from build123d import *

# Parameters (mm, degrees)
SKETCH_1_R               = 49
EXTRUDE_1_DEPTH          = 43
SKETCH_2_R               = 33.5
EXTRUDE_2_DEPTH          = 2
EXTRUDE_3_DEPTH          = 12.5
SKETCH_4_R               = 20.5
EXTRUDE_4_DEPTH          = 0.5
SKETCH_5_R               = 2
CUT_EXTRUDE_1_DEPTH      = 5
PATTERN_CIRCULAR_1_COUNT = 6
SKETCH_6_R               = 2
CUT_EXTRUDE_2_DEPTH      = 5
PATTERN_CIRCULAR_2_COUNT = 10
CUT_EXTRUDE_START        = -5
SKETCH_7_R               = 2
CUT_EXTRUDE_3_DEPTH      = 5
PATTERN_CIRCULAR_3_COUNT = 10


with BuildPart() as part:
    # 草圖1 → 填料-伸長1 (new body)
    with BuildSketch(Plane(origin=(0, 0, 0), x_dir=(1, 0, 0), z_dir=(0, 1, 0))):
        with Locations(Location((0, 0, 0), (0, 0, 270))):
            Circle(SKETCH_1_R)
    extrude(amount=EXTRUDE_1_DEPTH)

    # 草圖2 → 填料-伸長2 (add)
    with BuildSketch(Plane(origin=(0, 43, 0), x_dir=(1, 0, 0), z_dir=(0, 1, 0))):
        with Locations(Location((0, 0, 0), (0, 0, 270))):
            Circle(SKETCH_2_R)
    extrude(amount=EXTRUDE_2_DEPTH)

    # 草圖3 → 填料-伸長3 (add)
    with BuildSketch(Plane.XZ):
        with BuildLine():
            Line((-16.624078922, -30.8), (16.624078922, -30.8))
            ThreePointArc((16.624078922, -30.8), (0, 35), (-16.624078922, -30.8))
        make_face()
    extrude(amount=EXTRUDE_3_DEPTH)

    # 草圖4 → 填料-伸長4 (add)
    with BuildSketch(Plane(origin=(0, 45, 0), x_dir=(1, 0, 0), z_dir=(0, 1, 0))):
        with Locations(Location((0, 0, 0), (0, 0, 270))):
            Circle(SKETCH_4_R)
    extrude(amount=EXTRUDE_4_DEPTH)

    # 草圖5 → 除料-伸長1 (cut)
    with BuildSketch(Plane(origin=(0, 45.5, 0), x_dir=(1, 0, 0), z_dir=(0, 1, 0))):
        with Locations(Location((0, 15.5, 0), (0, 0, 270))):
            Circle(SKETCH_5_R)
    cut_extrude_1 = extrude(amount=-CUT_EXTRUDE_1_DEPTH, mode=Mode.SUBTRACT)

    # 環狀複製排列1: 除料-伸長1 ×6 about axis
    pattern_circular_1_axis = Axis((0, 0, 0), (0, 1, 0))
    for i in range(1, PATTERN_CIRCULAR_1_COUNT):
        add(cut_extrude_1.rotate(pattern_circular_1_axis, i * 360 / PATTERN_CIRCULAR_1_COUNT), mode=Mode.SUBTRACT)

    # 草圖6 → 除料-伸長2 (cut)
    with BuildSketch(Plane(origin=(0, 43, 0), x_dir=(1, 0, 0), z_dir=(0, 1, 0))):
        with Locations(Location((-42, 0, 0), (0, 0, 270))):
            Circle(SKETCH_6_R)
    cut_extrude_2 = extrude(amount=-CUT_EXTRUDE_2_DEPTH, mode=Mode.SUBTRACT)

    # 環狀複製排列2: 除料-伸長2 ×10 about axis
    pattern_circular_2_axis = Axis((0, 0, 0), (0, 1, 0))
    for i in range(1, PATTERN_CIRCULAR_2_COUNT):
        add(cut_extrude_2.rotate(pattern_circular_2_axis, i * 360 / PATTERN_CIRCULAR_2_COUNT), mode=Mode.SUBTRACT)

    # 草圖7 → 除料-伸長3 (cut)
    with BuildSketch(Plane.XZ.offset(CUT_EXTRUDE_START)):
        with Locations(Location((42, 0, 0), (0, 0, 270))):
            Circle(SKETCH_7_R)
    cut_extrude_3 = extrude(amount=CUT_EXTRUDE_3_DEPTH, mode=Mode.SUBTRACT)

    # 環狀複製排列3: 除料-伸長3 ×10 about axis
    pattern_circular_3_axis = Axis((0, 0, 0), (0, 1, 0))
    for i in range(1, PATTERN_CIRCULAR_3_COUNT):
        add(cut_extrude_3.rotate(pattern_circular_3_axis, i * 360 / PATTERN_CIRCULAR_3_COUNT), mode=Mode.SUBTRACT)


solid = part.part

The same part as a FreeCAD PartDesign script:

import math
import FreeCAD as App
import Part
import Sketcher
from FreeCAD import Vector

doc = App.newDocument("Part")
body = doc.addObject("PartDesign::Body", "Body")

# Sketch on XZ plane
sketch1 = doc.addObject("Sketcher::SketchObject", "Sketch")
body.addObject(sketch1)
sketch1.AttachmentSupport = (doc.XZ_Plane, [""])
sketch1.MapMode = "FlatFace"
sketch1.addGeometry(Part.Circle(Vector(0, 0, 0), Vector(0, 0, 1), 49), False)
sketch1.addConstraint(Sketcher.Constraint("Coincident", 0, 3, -1, 1))
sketch1.addConstraint(Sketcher.Constraint("Diameter", 0, 98.0))
pad1 = doc.addObject("PartDesign::Pad", "Pad")
body.addObject(pad1)
pad1.Profile = sketch1
pad1.Length = 43
pad1.Reversed = True

# Sketch on XZ plane
sketch2 = doc.addObject("Sketcher::SketchObject", "Sketch001")
body.addObject(sketch2)
sketch2.AttachmentSupport = (doc.XZ_Plane, [""])
sketch2.MapMode = "FlatFace"
sketch2.AttachmentOffset = App.Placement(Vector(0, 0, -43), App.Rotation())
sketch2.addGeometry(Part.Circle(Vector(0, 0, 0), Vector(0, 0, 1), 33.5), False)
sketch2.addConstraint(Sketcher.Constraint("Coincident", 0, 3, -1, 1))
sketch2.addConstraint(Sketcher.Constraint("Diameter", 0, 67.0))
pad2 = doc.addObject("PartDesign::Pad", "Pad001")
body.addObject(pad2)
pad2.Profile = sketch2
pad2.Length = 2
pad2.Reversed = True

# Sketch on XZ plane
sketch3 = doc.addObject("Sketcher::SketchObject", "Sketch002")
body.addObject(sketch3)
sketch3.AttachmentSupport = (doc.XZ_Plane, [""])
sketch3.MapMode = "FlatFace"
sketch3.addGeometry(Part.LineSegment(Vector(-16.624079, -30.8, 0), Vector(16.624079, -30.8, 0)), False)
sketch3.addGeometry(Part.ArcOfCircle(Part.Circle(Vector(0, 0, 0), Vector(0, 0, 1), 35), math.radians(-61.642363), math.radians(241.642363)), False)
sketch3.addConstraint(Sketcher.Constraint("Coincident", 0, 1, 1, 2))
sketch3.addConstraint(Sketcher.Constraint("Coincident", 1, 1, 0, 2))
sketch3.addConstraint(Sketcher.Constraint("Horizontal", 0))
sketch3.addConstraint(Sketcher.Constraint("Coincident", 1, 3, -1, 1))
sketch3.addConstraint(Sketcher.Constraint("Radius", 1, 35.0))
sketch3.addConstraint(Sketcher.Constraint("DistanceY", 0, 1, -1, 1, 30.8))
pad3 = doc.addObject("PartDesign::Pad", "Pad002")
body.addObject(pad3)
pad3.Profile = sketch3
pad3.Length = 12.5

# Sketch on XZ plane
sketch4 = doc.addObject("Sketcher::SketchObject", "Sketch003")
body.addObject(sketch4)
sketch4.AttachmentSupport = (doc.XZ_Plane, [""])
sketch4.MapMode = "FlatFace"
sketch4.AttachmentOffset = App.Placement(Vector(0, 0, -45), App.Rotation())
sketch4.addGeometry(Part.Circle(Vector(0, 0, 0), Vector(0, 0, 1), 20.5), False)
sketch4.addConstraint(Sketcher.Constraint("Coincident", 0, 3, -1, 1))
sketch4.addConstraint(Sketcher.Constraint("Diameter", 0, 41.0))
pad4 = doc.addObject("PartDesign::Pad", "Pad003")
body.addObject(pad4)
pad4.Profile = sketch4
pad4.Length = 0.5
pad4.Reversed = True

# Sketch on XZ plane
sketch5 = doc.addObject("Sketcher::SketchObject", "Sketch004")
body.addObject(sketch5)
sketch5.AttachmentSupport = (doc.XZ_Plane, [""])
sketch5.MapMode = "FlatFace"
sketch5.AttachmentOffset = App.Placement(Vector(0, 0, -45.5), App.Rotation())
sketch5.addGeometry(Part.Circle(Vector(0, -15.5, 0), Vector(0, 0, 1), 2), False)
sketch5.addConstraint(Sketcher.Constraint("PointOnObject", 0, 3, -2))
sketch5.addConstraint(Sketcher.Constraint("Diameter", 0, 4.0))
sketch5.addConstraint(Sketcher.Constraint("DistanceY", 0, 3, -1, 1, 15.5))
pocket1 = doc.addObject("PartDesign::Pocket", "Pocket")
body.addObject(pocket1)
pocket1.Profile = sketch5
pocket1.Length = 5
pocket1.Reversed = True
doc.recompute()

polarpattern = doc.addObject("PartDesign::PolarPattern", "PolarPattern")
body.addObject(polarpattern)
polarpattern.Originals = [pocket1]
polarpattern.Axis = (doc.Y_Axis, [""])
polarpattern.Angle = 360
polarpattern.Occurrences = 6
body.Tip = polarpattern

# Sketch on XZ plane
sketch6 = doc.addObject("Sketcher::SketchObject", "Sketch005")
body.addObject(sketch6)
sketch6.AttachmentSupport = (doc.XZ_Plane, [""])
sketch6.MapMode = "FlatFace"
sketch6.AttachmentOffset = App.Placement(Vector(0, 0, -43), App.Rotation())
sketch6.addGeometry(Part.Circle(Vector(-42, 0, 0), Vector(0, 0, 1), 2), False)
sketch6.addConstraint(Sketcher.Constraint("PointOnObject", 0, 3, -1))
sketch6.addConstraint(Sketcher.Constraint("Diameter", 0, 4.0))
sketch6.addConstraint(Sketcher.Constraint("DistanceX", 0, 3, -1, 1, 42.0))
pocket2 = doc.addObject("PartDesign::Pocket", "Pocket001")
body.addObject(pocket2)
pocket2.Profile = sketch6
pocket2.Length = 5
pocket2.Reversed = True
doc.recompute()

polarpattern2 = doc.addObject("PartDesign::PolarPattern", "PolarPattern001")
body.addObject(polarpattern2)
polarpattern2.Originals = [pocket2]
polarpattern2.Axis = (doc.Y_Axis, [""])
polarpattern2.Angle = 360
polarpattern2.Occurrences = 10
body.Tip = polarpattern2

# Sketch on XZ plane
sketch7 = doc.addObject("Sketcher::SketchObject", "Sketch006")
body.addObject(sketch7)
sketch7.AttachmentSupport = (doc.XZ_Plane, [""])
sketch7.MapMode = "FlatFace"
sketch7.AttachmentOffset = App.Placement(Vector(0, 0, -5), App.Rotation())
sketch7.addGeometry(Part.Circle(Vector(42, 0, 0), Vector(0, 0, 1), 2), False)
sketch7.addConstraint(Sketcher.Constraint("PointOnObject", 0, 3, -1))
sketch7.addConstraint(Sketcher.Constraint("Diameter", 0, 4.0))
sketch7.addConstraint(Sketcher.Constraint("DistanceX", -1, 1, 0, 3, 42.0))
pocket3 = doc.addObject("PartDesign::Pocket", "Pocket002")
body.addObject(pocket3)
pocket3.Profile = sketch7
pocket3.Length = 5
pocket3.Reversed = True
doc.recompute()

polarpattern3 = doc.addObject("PartDesign::PolarPattern", "PolarPattern002")
body.addObject(polarpattern3)
polarpattern3.Originals = [pocket3]
polarpattern3.Axis = (doc.Y_Axis, [""])
polarpattern3.Angle = 360
polarpattern3.Occurrences = 10
body.Tip = polarpattern3

doc.recompute()
